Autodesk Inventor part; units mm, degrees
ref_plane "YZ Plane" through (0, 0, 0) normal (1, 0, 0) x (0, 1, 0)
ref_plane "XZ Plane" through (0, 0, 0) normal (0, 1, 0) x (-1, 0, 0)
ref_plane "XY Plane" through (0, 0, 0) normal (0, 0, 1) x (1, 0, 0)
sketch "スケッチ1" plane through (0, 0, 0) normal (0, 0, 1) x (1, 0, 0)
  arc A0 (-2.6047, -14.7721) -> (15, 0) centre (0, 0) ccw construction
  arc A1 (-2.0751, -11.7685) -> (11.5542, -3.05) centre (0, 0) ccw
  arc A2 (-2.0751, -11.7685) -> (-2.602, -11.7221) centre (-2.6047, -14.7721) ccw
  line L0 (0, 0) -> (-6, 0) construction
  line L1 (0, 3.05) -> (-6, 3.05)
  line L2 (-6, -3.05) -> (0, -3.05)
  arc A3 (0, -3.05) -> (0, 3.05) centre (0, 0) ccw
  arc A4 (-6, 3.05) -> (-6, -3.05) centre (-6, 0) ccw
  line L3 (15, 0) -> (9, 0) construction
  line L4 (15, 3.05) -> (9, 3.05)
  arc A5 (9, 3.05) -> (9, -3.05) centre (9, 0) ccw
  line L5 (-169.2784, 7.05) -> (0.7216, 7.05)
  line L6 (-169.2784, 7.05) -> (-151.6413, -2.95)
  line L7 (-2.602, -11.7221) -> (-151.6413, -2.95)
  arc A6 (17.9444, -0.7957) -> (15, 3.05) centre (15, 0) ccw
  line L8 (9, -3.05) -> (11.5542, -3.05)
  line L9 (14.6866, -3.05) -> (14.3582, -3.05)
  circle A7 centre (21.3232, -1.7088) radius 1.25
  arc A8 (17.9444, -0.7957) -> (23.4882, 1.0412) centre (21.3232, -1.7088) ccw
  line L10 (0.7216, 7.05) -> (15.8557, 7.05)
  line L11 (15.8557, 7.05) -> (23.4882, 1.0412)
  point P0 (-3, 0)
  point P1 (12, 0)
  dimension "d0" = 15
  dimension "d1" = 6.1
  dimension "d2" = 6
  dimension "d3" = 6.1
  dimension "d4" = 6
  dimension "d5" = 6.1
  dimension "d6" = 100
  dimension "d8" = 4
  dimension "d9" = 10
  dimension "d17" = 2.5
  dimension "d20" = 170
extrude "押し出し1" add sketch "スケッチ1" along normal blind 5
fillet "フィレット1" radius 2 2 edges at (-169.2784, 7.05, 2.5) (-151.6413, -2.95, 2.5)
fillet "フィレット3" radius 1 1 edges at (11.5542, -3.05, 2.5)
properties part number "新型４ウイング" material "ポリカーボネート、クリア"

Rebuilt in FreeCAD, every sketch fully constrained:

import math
import FreeCAD as App
import Part
import Sketcher


def edges_at(feature, points):
    """Names of the edges that pass closest to the given points."""
    edges = feature.Shape.Edges
    near = lambda p: min(range(len(edges)), key=lambda i: edges[i].distToShape(Part.Vertex(*p))[0])
    return sorted({f"Edge{near(p) + 1}" for p in points})

doc = App.newDocument("Part")
body = doc.addObject("PartDesign::Body", "Body")

# Sketch on XY plane
sketch1 = doc.addObject("Sketcher::SketchObject", "Sketch")
body.addObject(sketch1)
sketch1.AttachmentSupport = (doc.XY_Plane, [""])
sketch1.MapMode = "FlatFace"
sketch1.addGeometry(Part.ArcOfCircle(Part.Circle(App.Vector(-2.6, -14.8, 0), App.Vector(0, 0, 1), 3.1), math.radians(80.01), math.radians(89.93)), False)
sketch1.addGeometry(Part.ArcOfCircle(Part.Circle(App.Vector(0, 0, 0), App.Vector(0, 0, 1), 12), math.radians(-100), math.radians(-15)), False)
sketch1.addGeometry(Part.LineSegment(App.Vector(11.6, -3, 0), App.Vector(9, -3, 0)), False)
sketch1.addGeometry(Part.ArcOfCircle(Part.Circle(App.Vector(9, 0, 0), App.Vector(0, 0, 1), 3), math.radians(90), math.radians(270)), False)
sketch1.addGeometry(Part.LineSegment(App.Vector(9, 3, 0), App.Vector(15, 3, 0)), False)
sketch1.addGeometry(Part.ArcOfCircle(Part.Circle(App.Vector(15, 0, 0), App.Vector(0, 0, 1), 3.1), math.radians(-15), math.radians(90)), False)
sketch1.addGeometry(Part.ArcOfCircle(Part.Circle(App.Vector(21.3, -1.7, 0), App.Vector(0, 0, 1), 3.5), math.radians(165), math.radians(412)), False)
sketch1.addGeometry(Part.LineSegment(App.Vector(23.5, 1, 0), App.Vector(15.9, 7, 0)), False)
sketch1.addGeometry(Part.LineSegment(App.Vector(15.9, 7, 0), App.Vector(-169.3, 7, 0)), False)
sketch1.addGeometry(Part.LineSegment(App.Vector(-169.3, 7, 0), App.Vector(-151.6, -3, 0)), False)
sketch1.addGeometry(Part.LineSegment(App.Vector(-151.6, -3, 0), App.Vector(-2.6, -11.7, 0)), False)
sketch1.addGeometry(Part.Circle(App.Vector(21.3, -1.7, 0), App.Vector(0, 0, 1), 1.2), False)
sketch1.addGeometry(Part.LineSegment(App.Vector(-6, 3, 0), App.Vector(0, 3, 0)), False)
sketch1.addGeometry(Part.ArcOfCircle(Part.Circle(App.Vector(0, 0, 0), App.Vector(0, 0, 1), 3), math.radians(-90), math.radians(90)), False)
sketch1.addGeometry(Part.LineSegment(App.Vector(0, -3, 0), App.Vector(-6, -3, 0)), False)
sketch1.addGeometry(Part.ArcOfCircle(Part.Circle(App.Vector(-6, 0, 0), App.Vector(0, 0, 1), 3), math.radians(90), math.radians(270)), False)
sketch1.addConstraint(Sketcher.Constraint("Tangent", 0, 1, 1, 1))
sketch1.addConstraint(Sketcher.Constraint("Coincident", 1, 2, 2, 1))
sketch1.addConstraint(Sketcher.Constraint("Tangent", 2, 2, 3, 2))
sketch1.addConstraint(Sketcher.Constraint("Tangent", 3, 1, 4, 1))
sketch1.addConstraint(Sketcher.Constraint("Tangent", 4, 2, 5, 2))
sketch1.addConstraint(Sketcher.Constraint("Tangent", 5, 1, 6, 1))
sketch1.addConstraint(Sketcher.Constraint("Tangent", 6, 2, 7, 1))
sketch1.addConstraint(Sketcher.Constraint("Coincident", 7, 2, 8, 1))
sketch1.addConstraint(Sketcher.Constraint("Coincident", 8, 2, 9, 1))
sketch1.addConstraint(Sketcher.Constraint("Coincident", 9, 2, 10, 1))
sketch1.addConstraint(Sketcher.Constraint("Coincident", 10, 2, 0, 2))
sketch1.addConstraint(Sketcher.Constraint("Tangent", 12, 2, 13, 2))
sketch1.addConstraint(Sketcher.Constraint("Tangent", 13, 1, 14, 1))
sketch1.addConstraint(Sketcher.Constraint("Tangent", 14, 2, 15, 2))
sketch1.addConstraint(Sketcher.Constraint("Tangent", 15, 1, 12, 1))
sketch1.addConstraint(Sketcher.Constraint("Horizontal", 2))
sketch1.addConstraint(Sketcher.Constraint("Horizontal", 4))
sketch1.addConstraint(Sketcher.Constraint("Horizontal", 8))
sketch1.addConstraint(Sketcher.Constraint("Horizontal", 12))
sketch1.addConstraint(Sketcher.Constraint("Horizontal", 14))
sketch1.addConstraint(Sketcher.Constraint("Coincident", 1, 3, -1, 1))
sketch1.addConstraint(Sketcher.Constraint("Coincident", 13, 3, -1, 1))
sketch1.addConstraint(Sketcher.Constraint("Coincident", 11, 3, 6, 3))
sketch1.addConstraint(Sketcher.Constraint("Equal", 3, 5))
sketch1.addConstraint(Sketcher.Constraint("Equal", 5, 13))
sketch1.addConstraint(Sketcher.Constraint("PointOnObject", 3, 3, -1))
sketch1.addConstraint(Sketcher.Constraint("Equal", 4, 12))
sketch1.addConstraint(Sketcher.Constraint("Diameter", 11, 2.5))
sketch1.addConstraint(Sketcher.Constraint("DistanceX", 4, 1, 4, 2, 6.0))
sketch1.addConstraint(Sketcher.Constraint("Radius", 3, 3.05))
sketch1.addConstraint(Sketcher.Constraint("DistanceX", -1, 1, 5, 3, 15.0))
sketch1.addConstraint(Sketcher.Constraint("DistanceY", 4, 2, 7, 2, 4.0))
sketch1.addConstraint(Sketcher.Constraint("DistanceY", 9, 2, 8, 2, 10.0))
sketch1.addConstraint(Sketcher.Constraint("Radius", 6, 3.5))
sketch1.addConstraint(Sketcher.Constraint("Radius", 1, 11.95))
sketch1.addConstraint(Sketcher.Constraint("Radius", 0, 3.059))
sketch1.addConstraint(Sketcher.Constraint("DistanceX", 8, 2, 8, 1, 185.134))
sketch1.addConstraint(Sketcher.Constraint("DistanceY", 6, 3, 6, 2, 2.75))
sketch1.addConstraint(Sketcher.Constraint("Distance", 7, 9.714))
sketch1.addConstraint(Sketcher.Constraint("DistanceX", 0, 3, -1, 1, 2.606))
sketch1.addConstraint(Sketcher.Constraint("DistanceX", 10, 2, -1, 1, 2.602))
sketch1.addConstraint(Sketcher.Constraint("DistanceX", 8, 2, 9, 2, 17.637))
pad1 = doc.addObject("PartDesign::Pad", "Pad")
body.addObject(pad1)
pad1.Profile = sketch1
pad1.Length = 5
doc.recompute()

fillet = doc.addObject("PartDesign::Fillet", "Fillet")
body.addObject(fillet)
fillet.Base = (pad1, edges_at(pad1, [(-169.278, 7.05, 2.5), (-151.641, -2.95, 2.5)]))
fillet.Radius = 2
doc.recompute()

fillet2 = doc.addObject("PartDesign::Fillet", "Fillet001")
body.addObject(fillet2)
fillet2.Base = (fillet, edges_at(fillet, [(11.554, -3.05, 2.5)]))
fillet2.Radius = 1

doc.recompute()
